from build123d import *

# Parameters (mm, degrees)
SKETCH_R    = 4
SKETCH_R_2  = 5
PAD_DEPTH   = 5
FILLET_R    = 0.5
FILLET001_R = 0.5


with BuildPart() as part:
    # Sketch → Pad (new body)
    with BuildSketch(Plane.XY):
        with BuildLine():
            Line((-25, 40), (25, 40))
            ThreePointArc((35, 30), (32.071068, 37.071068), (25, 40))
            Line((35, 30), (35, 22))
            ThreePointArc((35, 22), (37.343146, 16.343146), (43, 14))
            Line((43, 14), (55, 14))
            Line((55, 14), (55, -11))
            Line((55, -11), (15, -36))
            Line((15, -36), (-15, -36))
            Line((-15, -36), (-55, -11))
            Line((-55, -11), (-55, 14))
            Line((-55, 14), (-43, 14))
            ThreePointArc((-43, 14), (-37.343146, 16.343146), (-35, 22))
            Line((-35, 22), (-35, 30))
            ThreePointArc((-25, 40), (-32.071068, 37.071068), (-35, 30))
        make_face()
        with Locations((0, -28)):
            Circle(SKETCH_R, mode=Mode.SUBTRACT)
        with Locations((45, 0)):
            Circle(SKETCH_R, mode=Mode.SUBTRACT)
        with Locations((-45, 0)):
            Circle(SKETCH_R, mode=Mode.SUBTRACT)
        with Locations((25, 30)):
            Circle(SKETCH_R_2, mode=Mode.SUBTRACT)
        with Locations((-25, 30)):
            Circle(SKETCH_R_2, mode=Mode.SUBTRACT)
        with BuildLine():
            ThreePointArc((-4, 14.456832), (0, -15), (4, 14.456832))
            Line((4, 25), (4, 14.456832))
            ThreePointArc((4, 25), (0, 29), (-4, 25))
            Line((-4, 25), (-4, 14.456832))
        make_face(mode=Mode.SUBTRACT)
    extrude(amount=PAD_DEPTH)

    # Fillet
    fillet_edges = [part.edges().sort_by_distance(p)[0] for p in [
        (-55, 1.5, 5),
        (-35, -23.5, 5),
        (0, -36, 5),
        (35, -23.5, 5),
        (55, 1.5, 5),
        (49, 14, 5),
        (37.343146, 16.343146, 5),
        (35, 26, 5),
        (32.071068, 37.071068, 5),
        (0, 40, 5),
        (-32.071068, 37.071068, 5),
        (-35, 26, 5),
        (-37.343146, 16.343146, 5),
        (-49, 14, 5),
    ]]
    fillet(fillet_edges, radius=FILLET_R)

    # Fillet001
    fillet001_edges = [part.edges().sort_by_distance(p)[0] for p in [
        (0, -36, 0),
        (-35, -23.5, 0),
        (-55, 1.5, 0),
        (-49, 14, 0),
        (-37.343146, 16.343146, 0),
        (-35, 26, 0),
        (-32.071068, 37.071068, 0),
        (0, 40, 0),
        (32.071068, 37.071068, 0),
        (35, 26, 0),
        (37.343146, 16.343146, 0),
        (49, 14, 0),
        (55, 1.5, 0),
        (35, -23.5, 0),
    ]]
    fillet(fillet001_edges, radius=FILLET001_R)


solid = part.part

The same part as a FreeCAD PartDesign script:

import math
import FreeCAD as App
import Part
import Sketcher
Q = App.Units.Quantity


def edges_at(feature, points):
    """Names of the edges that pass closest to the given points."""
    edges = feature.Shape.Edges
    near = lambda p: min(range(len(edges)), key=lambda i: edges[i].distToShape(Part.Vertex(*p))[0])
    return sorted({f"Edge{near(p) + 1}" for p in points})

doc = App.newDocument("Part")
params = doc.addObject("Spreadsheet::Sheet", "Params")
for row, (alias, value) in enumerate([
    ("sketch1_diameter", "8 mm"),
    ("sketch1_diameter2", "10 mm"),
    ("sketch1_radius", "9.999999 mm"),
    ("sketch1_radius2", "8.000001 mm"),
    ("sketch1_radius3", "15 mm"),
    ("pad1_length", "5 mm"),
    ("fillet_radius", "0.5 mm"),
    ("fillet2_radius", "0.5 mm"),
], start=1):
    params.set(f"A{row}", alias)
    params.set(f"B{row}", "=" + value)
    params.setAlias(f"B{row}", alias)

body = doc.addObject("PartDesign::Body", "Body")

sketch1 = body.newObject("Sketcher::SketchObject", "Sketch")
sketch1.AttachmentSupport = (doc.getObject("XY_Plane"), [""])
sketch1.MapMode = "FlatFace"
sketch1.addGeometry([
    Part.LineSegment(App.Vector(25, 40, 0), App.Vector(-25, 40, 0)),
    Part.ArcOfCircle(Part.Circle(App.Vector(-25, 30, 0), App.Vector(0, 0, 1), 10), math.radians(90), math.radians(180)),
    Part.LineSegment(App.Vector(-35, 30, 0), App.Vector(-35, 22, 0)),
    Part.ArcOfCircle(Part.Circle(App.Vector(-43, 22, 0), App.Vector(0, 0, 1), 8), math.radians(-90), math.radians(0)),
    Part.LineSegment(App.Vector(-43, 14, 0), App.Vector(-55, 14, 0)),
    Part.LineSegment(App.Vector(-55, 14, 0), App.Vector(-55, -11, 0)),
    Part.LineSegment(App.Vector(-55, -11, 0), App.Vector(-15, -36, 0)),
    Part.LineSegment(App.Vector(-15, -36, 0), App.Vector(15, -36, 0)),
    Part.LineSegment(App.Vector(15, -36, 0), App.Vector(55, -11, 0)),
    Part.LineSegment(App.Vector(55, -11, 0), App.Vector(55, 14, 0)),
    Part.LineSegment(App.Vector(55, 14, 0), App.Vector(43, 14, 0)),
    Part.ArcOfCircle(Part.Circle(App.Vector(43, 22, 0), App.Vector(0, 0, 1), 8), math.radians(-180), math.radians(-90)),
    Part.LineSegment(App.Vector(35, 22, 0), App.Vector(35, 30, 0)),
    Part.ArcOfCircle(Part.Circle(App.Vector(25, 30, 0), App.Vector(0, 0, 1), 10), math.radians(0), math.radians(90)),
    Part.Circle(App.Vector(0, -28, 0), App.Vector(0, 0, 1), 4),
    Part.Circle(App.Vector(45, 0, 0), App.Vector(0, 0, 1), 4),
    Part.Circle(App.Vector(-45, 0, 0), App.Vector(0, 0, 1), 4),
    Part.LineSegment(App.Vector(-4, 14.5, 0), App.Vector(-4, 25, 0)),
    Part.ArcOfCircle(Part.Circle(App.Vector(0, 25, 0), App.Vector(0, 0, 1), 4), math.radians(0), math.radians(180)),
    Part.LineSegment(App.Vector(4, 25, 0), App.Vector(4, 14.5, 0)),
    Part.ArcOfCircle(Part.Circle(App.Vector(0, 0, 0), App.Vector(0, 0, 1), 15), math.radians(105), math.radians(435)),
    Part.Circle(App.Vector(25, 30, 0), App.Vector(0, 0, 1), 5),
    Part.Circle(App.Vector(-25, 30, 0), App.Vector(0, 0, 1), 5),
], False)
sketch1.addConstraint([
    Sketcher.Constraint("Tangent", 0, 2, 1, 1),
    Sketcher.Constraint("Tangent", 1, 2, 2, 1),
    Sketcher.Constraint("Tangent", 2, 2, 3, 2),
    Sketcher.Constraint("Tangent", 3, 1, 4, 1),
    Sketcher.Constraint("Coincident", 4, 2, 5, 1),
    Sketcher.Constraint("Coincident", 5, 2, 6, 1),
    Sketcher.Constraint("Coincident", 6, 2, 7, 1),
    Sketcher.Constraint("Coincident", 7, 2, 8, 1),
    Sketcher.Constraint("Coincident", 8, 2, 9, 1),
    Sketcher.Constraint("Coincident", 9, 2, 10, 1),
    Sketcher.Constraint("Tangent", 10, 2, 11, 2),
    Sketcher.Constraint("Tangent", 11, 1, 12, 1),
    Sketcher.Constraint("Tangent", 12, 2, 13, 1),
    Sketcher.Constraint("Tangent", 13, 2, 0, 1),
    Sketcher.Constraint("Tangent", 17, 2, 18, 2),
    Sketcher.Constraint("Tangent", 18, 1, 19, 1),
    Sketcher.Constraint("Coincident", 19, 2, 20, 2),
    Sketcher.Constraint("Coincident", 20, 1, 17, 1),
    Sketcher.Constraint("Horizontal", 0),
    Sketcher.Constraint("Vertical", 2),
    Sketcher.Constraint("Horizontal", 4),
    Sketcher.Constraint("Vertical", 5),
    Sketcher.Constraint("Horizontal", 7),
    Sketcher.Constraint("Vertical", 9),
    Sketcher.Constraint("Horizontal", 10),
    Sketcher.Constraint("Vertical", 12),
    Sketcher.Constraint("Vertical", 17),
    Sketcher.Constraint("Vertical", 19),
    Sketcher.Constraint("Coincident", 20, 3, -1, 1),
    Sketcher.Constraint("Coincident", 21, 3, 13, 3),
    Sketcher.Constraint("Coincident", 22, 3, 1, 3),
    Sketcher.Constraint("Equal", 3, 11),
    Sketcher.Constraint("Equal", 1, 13),
    Sketcher.Constraint("Equal", 14, 15),
    Sketcher.Constraint("Equal", 15, 16),
    Sketcher.Constraint("Equal", 16, 18),
    Sketcher.Constraint("Equal", 21, 22),
    Sketcher.Constraint("Symmetric", 15, 3, 16, 3, -1, 1),
    Sketcher.Constraint("Symmetric", 3, 3, 11, 3, -2),
    Sketcher.Constraint("Symmetric", 5, 2, 8, 2, -2),
    Sketcher.Constraint("PointOnObject", 14, 3, -2),
    Sketcher.Constraint("PointOnObject", 15, 3, -1),
    Sketcher.Constraint("PointOnObject", 18, 3, -2),
    Sketcher.Constraint("Equal", 6, 8),
    Sketcher.Constraint("Diameter", 14, Q("8 mm")),
    Sketcher.Constraint("Diameter", 21, Q("10 mm")),
    Sketcher.Constraint("Radius", 1, Q("9.999999 mm")),
    Sketcher.Constraint("Radius", 3, Q("8.000001 mm")),
    Sketcher.Constraint("Radius", 20, Q("15 mm")),
    Sketcher.Constraint("DistanceX", 0, 2, 0, 1, Q("50 mm")),
    Sketcher.Constraint("DistanceX", 4, 2, 4, 1, Q("12 mm")),
    Sketcher.Constraint("DistanceX", 7, 1, 7, 2, Q("30 mm")),
    Sketcher.Constraint("DistanceY", 2, 2, 2, 1, Q("8 mm")),
    Sketcher.Constraint("DistanceY", 5, 2, 5, 1, Q("25 mm")),
    Sketcher.Constraint("DistanceY", -1, 1, 1, 3, Q("30.000001 mm")),
    Sketcher.Constraint("DistanceY", 14, 3, -1, 1, Q("28 mm")),
    Sketcher.Constraint("DistanceX", -1, 1, 15, 3, Q("45 mm")),
    Sketcher.Constraint("DistanceY", -1, 1, 18, 3, Q("25 mm")),
    Sketcher.Constraint("DistanceY", 6, 2, -1, 1, Q("36 mm")),
])
sketch1.setExpression("Constraints[44]", "Params.sketch1_diameter")
sketch1.setExpression("Constraints[45]", "Params.sketch1_diameter2")
sketch1.setExpression("Constraints[46]", "Params.sketch1_radius")
sketch1.setExpression("Constraints[47]", "Params.sketch1_radius2")
sketch1.setExpression("Constraints[48]", "Params.sketch1_radius3")
pad1 = body.newObject("PartDesign::Pad", "Pad")
pad1.Profile = sketch1
pad1.setExpression("Length", "Params.pad1_length")
doc.recompute()

fillet = body.newObject("PartDesign::Fillet", "Fillet")
fillet.Base = (pad1, edges_at(pad1, [
    (-55, 1.5, 5),
    (-35, -23.5, 5),
    (0, -36, 5),
    (35, -23.5, 5),
    (55, 1.5, 5),
    (49, 14, 5),
    (37.343, 16.343, 5),
    (35, 26, 5),
    (32.071, 37.071, 5),
    (0, 40, 5),
    (-32.071, 37.071, 5),
    (-35, 26, 5),
    (-37.343, 16.343, 5),
    (-49, 14, 5),
]))
fillet.setExpression("Radius", "Params.fillet_radius")
doc.recompute()

fillet2 = body.newObject("PartDesign::Fillet", "Fillet001")
fillet2.Base = (fillet, edges_at(fillet, [
    (0, -36, 0),
    (-35, -23.5, 0),
    (-55, 1.5, 0),
    (-49, 14, 0),
    (-37.343, 16.343, 0),
    (-35, 26, 0),
    (-32.071, 37.071, 0),
    (0, 40, 0),
    (32.071, 37.071, 0),
    (35, 26, 0),
    (37.343, 16.343, 0),
    (49, 14, 0),
    (55, 1.5, 0),
    (35, -23.5, 0),
]))
fillet2.setExpression("Radius", "Params.fillet2_radius")

doc.recompute()
